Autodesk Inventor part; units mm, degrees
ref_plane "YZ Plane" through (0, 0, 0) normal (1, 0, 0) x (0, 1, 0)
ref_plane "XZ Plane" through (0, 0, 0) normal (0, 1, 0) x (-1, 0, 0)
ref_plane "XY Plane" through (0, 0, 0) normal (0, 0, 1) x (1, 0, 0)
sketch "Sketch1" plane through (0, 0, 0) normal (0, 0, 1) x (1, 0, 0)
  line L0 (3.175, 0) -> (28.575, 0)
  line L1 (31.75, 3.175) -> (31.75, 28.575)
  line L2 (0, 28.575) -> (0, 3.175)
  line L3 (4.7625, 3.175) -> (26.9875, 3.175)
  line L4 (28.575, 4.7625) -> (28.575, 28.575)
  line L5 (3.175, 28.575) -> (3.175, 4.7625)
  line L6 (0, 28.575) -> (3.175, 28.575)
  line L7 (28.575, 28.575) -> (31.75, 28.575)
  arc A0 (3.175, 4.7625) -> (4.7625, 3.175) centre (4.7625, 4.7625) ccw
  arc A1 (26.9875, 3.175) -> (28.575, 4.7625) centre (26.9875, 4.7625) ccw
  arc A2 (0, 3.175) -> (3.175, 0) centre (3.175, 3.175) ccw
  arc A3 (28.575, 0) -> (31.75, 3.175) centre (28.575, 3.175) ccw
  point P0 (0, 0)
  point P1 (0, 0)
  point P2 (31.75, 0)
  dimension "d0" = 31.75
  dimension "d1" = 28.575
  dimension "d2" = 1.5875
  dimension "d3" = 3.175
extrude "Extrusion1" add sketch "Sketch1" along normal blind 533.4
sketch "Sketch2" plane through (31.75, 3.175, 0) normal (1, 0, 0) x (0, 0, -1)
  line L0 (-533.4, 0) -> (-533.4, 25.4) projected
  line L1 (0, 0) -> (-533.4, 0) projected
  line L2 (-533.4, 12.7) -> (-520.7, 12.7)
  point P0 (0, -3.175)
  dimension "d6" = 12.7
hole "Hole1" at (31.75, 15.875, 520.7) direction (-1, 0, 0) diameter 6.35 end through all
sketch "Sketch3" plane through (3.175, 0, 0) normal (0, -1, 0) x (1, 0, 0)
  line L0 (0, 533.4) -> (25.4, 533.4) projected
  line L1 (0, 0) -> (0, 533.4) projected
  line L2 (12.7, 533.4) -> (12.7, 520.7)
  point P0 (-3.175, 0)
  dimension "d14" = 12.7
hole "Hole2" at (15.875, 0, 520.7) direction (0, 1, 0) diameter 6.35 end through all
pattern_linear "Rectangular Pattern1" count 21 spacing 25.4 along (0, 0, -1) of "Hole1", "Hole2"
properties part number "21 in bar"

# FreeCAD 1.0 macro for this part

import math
import FreeCAD as App
import Part
import Sketcher
Q = App.Units.Quantity

doc = App.newDocument("Part")
body = doc.addObject("PartDesign::Body", "Body")

# Sketch on XY plane
sketch1 = doc.addObject("Sketcher::SketchObject", "Sketch")
body.addObject(sketch1)
sketch1.AttachmentSupport = (doc.XY_Plane, [""])
sketch1.MapMode = "FlatFace"
sketch1.addGeometry(Part.ArcOfCircle(Part.Circle(App.Vector(3.2, 3.2, 0), App.Vector(0, 0, 1), 3.2), math.radians(180), math.radians(270)), False)
sketch1.addGeometry(Part.LineSegment(App.Vector(3.2, 0, 0), App.Vector(28.6, 0, 0)), False)
sketch1.addGeometry(Part.ArcOfCircle(Part.Circle(App.Vector(28.6, 3.2, 0), App.Vector(0, 0, 1), 3.2), math.radians(-90), math.radians(0)), False)
sketch1.addGeometry(Part.LineSegment(App.Vector(31.8, 3.2, 0), App.Vector(31.8, 28.6, 0)), False)
sketch1.addGeometry(Part.LineSegment(App.Vector(31.8, 28.6, 0), App.Vector(28.6, 28.6, 0)), False)
sketch1.addGeometry(Part.LineSegment(App.Vector(28.6, 28.6, 0), App.Vector(28.6, 4.8, 0)), False)
sketch1.addGeometry(Part.ArcOfCircle(Part.Circle(App.Vector(27, 4.8, 0), App.Vector(0, 0, 1), 1.6), math.radians(-90), math.radians(0)), False)
sketch1.addGeometry(Part.LineSegment(App.Vector(27, 3.2, 0), App.Vector(4.8, 3.2, 0)), False)
sketch1.addGeometry(Part.ArcOfCircle(Part.Circle(App.Vector(4.8, 4.8, 0), App.Vector(0, 0, 1), 1.6), math.radians(180), math.radians(270)), False)
sketch1.addGeometry(Part.LineSegment(App.Vector(3.2, 4.8, 0), App.Vector(3.2, 28.6, 0)), False)
sketch1.addGeometry(Part.LineSegment(App.Vector(3.2, 28.6, 0), App.Vector(0, 28.6, 0)), False)
sketch1.addGeometry(Part.LineSegment(App.Vector(0, 28.6, 0), App.Vector(0, 3.2, 0)), False)
sketch1.addConstraint(Sketcher.Constraint("Tangent", 0, 2, 1, 1))
sketch1.addConstraint(Sketcher.Constraint("Tangent", 1, 2, 2, 1))
sketch1.addConstraint(Sketcher.Constraint("Tangent", 2, 2, 3, 1))
sketch1.addConstraint(Sketcher.Constraint("Coincident", 3, 2, 4, 1))
sketch1.addConstraint(Sketcher.Constraint("Coincident", 4, 2, 5, 1))
sketch1.addConstraint(Sketcher.Constraint("Tangent", 5, 2, 6, 2))
sketch1.addConstraint(Sketcher.Constraint("Tangent", 6, 1, 7, 1))
sketch1.addConstraint(Sketcher.Constraint("Tangent", 7, 2, 8, 2))
sketch1.addConstraint(Sketcher.Constraint("Tangent", 8, 1, 9, 1))
sketch1.addConstraint(Sketcher.Constraint("Coincident", 9, 2, 10, 1))
sketch1.addConstraint(Sketcher.Constraint("Coincident", 10, 2, 11, 1))
sketch1.addConstraint(Sketcher.Constraint("Tangent", 11, 2, 0, 1))
sketch1.addConstraint(Sketcher.Constraint("Horizontal", 1))
sketch1.addConstraint(Sketcher.Constraint("Vertical", 3))
sketch1.addConstraint(Sketcher.Constraint("Horizontal", 4))
sketch1.addConstraint(Sketcher.Constraint("Vertical", 5))
sketch1.addConstraint(Sketcher.Constraint("Horizontal", 7))
sketch1.addConstraint(Sketcher.Constraint("Vertical", 9))
sketch1.addConstraint(Sketcher.Constraint("Horizontal", 10))
sketch1.addConstraint(Sketcher.Constraint("Vertical", 11))
sketch1.addConstraint(Sketcher.Constraint("Equal", 0, 2))
sketch1.addConstraint(Sketcher.Constraint("Equal", 6, 8))
sketch1.addConstraint(Sketcher.Constraint("PointOnObject", 0, 2, -1))
sketch1.addConstraint(Sketcher.Constraint("PointOnObject", 10, 2, -2))
sketch1.addConstraint(Sketcher.Constraint("Horizontal", 2, 2, 6, 1))
sketch1.addConstraint(Sketcher.Constraint("Horizontal", 4, 2, 9, 2))
sketch1.addConstraint(Sketcher.Constraint("Vertical", 1, 2, 4, 2))
sketch1.addConstraint(Sketcher.Constraint("Vertical", 0, 2, 8, 1))
sketch1.addConstraint(Sketcher.Constraint("Equal", 1, 3))
sketch1.addConstraint(Sketcher.Constraint("Radius", 0, Q("0.125 in")))
sketch1.addConstraint(Sketcher.Constraint("Radius", 6, Q("0.0625 in")))
sketch1.addConstraint(Sketcher.Constraint("DistanceX", 1, 1, 1, 2, Q("1 in")))
pad1 = doc.addObject("PartDesign::Pad", "Pad")
body.addObject(pad1)
pad1.Profile = sketch1
pad1.Length = Q("21 in")

# Sketch on YZ plane
sketch2 = doc.addObject("Sketcher::SketchObject", "Sketch001")
body.addObject(sketch2)
sketch2.AttachmentSupport = (doc.YZ_Plane, [""])
sketch2.MapMode = "FlatFace"
sketch2.AttachmentOffset = App.Placement(App.Vector(0, 0, 1.25 * 25.4), App.Rotation())
sketch2.addGeometry(Part.Circle(App.Vector(15.9, 520.7, 0), App.Vector(0, 0, 1), 3.2), False)
sketch2.addConstraint(Sketcher.Constraint("Diameter", 0, Q("0.25 in")))
sketch2.addConstraint(Sketcher.Constraint("DistanceY", -1, 1, 0, 3, Q("20.5 in")))
sketch2.addConstraint(Sketcher.Constraint("DistanceX", -1, 1, 0, 3, Q("0.625 in")))
doc.recompute()
hole = doc.addObject("PartDesign::Hole", "Hole")
body.addObject(hole)
hole.Profile = sketch2
hole.ThreadType = "None"
hole.Diameter = Q("0.25 in")
hole.DepthType = "ThroughAll"

# Sketch on XZ plane
sketch3 = doc.addObject("Sketcher::SketchObject", "Sketch002")
body.addObject(sketch3)
sketch3.AttachmentSupport = (doc.XZ_Plane, [""])
sketch3.MapMode = "FlatFace"
sketch3.addGeometry(Part.Circle(App.Vector(15.9, 520.7, 0), App.Vector(0, 0, 1), 3.2), False)
sketch3.addConstraint(Sketcher.Constraint("Diameter", 0, Q("0.25 in")))
sketch3.addConstraint(Sketcher.Constraint("DistanceY", -1, 1, 0, 3, Q("20.5 in")))
sketch3.addConstraint(Sketcher.Constraint("DistanceX", -1, 1, 0, 3, Q("0.625 in")))
doc.recompute()
hole2 = doc.addObject("PartDesign::Hole", "Hole001")
body.addObject(hole2)
hole2.Profile = sketch3
hole2.ThreadType = "None"
hole2.Diameter = Q("0.25 in")
hole2.DepthType = "ThroughAll"
doc.recompute()

linearpattern = doc.addObject("PartDesign::LinearPattern", "LinearPattern")
body.addObject(linearpattern)
linearpattern.Originals = [hole, hole2]
linearpattern.Direction = (doc.Z_Axis, [""])
linearpattern.Mode = "offset"
linearpattern.Offset = Q("1 in")
linearpattern.Occurrences = 21
linearpattern.Reversed = True
body.Tip = linearpattern

doc.recompute()
